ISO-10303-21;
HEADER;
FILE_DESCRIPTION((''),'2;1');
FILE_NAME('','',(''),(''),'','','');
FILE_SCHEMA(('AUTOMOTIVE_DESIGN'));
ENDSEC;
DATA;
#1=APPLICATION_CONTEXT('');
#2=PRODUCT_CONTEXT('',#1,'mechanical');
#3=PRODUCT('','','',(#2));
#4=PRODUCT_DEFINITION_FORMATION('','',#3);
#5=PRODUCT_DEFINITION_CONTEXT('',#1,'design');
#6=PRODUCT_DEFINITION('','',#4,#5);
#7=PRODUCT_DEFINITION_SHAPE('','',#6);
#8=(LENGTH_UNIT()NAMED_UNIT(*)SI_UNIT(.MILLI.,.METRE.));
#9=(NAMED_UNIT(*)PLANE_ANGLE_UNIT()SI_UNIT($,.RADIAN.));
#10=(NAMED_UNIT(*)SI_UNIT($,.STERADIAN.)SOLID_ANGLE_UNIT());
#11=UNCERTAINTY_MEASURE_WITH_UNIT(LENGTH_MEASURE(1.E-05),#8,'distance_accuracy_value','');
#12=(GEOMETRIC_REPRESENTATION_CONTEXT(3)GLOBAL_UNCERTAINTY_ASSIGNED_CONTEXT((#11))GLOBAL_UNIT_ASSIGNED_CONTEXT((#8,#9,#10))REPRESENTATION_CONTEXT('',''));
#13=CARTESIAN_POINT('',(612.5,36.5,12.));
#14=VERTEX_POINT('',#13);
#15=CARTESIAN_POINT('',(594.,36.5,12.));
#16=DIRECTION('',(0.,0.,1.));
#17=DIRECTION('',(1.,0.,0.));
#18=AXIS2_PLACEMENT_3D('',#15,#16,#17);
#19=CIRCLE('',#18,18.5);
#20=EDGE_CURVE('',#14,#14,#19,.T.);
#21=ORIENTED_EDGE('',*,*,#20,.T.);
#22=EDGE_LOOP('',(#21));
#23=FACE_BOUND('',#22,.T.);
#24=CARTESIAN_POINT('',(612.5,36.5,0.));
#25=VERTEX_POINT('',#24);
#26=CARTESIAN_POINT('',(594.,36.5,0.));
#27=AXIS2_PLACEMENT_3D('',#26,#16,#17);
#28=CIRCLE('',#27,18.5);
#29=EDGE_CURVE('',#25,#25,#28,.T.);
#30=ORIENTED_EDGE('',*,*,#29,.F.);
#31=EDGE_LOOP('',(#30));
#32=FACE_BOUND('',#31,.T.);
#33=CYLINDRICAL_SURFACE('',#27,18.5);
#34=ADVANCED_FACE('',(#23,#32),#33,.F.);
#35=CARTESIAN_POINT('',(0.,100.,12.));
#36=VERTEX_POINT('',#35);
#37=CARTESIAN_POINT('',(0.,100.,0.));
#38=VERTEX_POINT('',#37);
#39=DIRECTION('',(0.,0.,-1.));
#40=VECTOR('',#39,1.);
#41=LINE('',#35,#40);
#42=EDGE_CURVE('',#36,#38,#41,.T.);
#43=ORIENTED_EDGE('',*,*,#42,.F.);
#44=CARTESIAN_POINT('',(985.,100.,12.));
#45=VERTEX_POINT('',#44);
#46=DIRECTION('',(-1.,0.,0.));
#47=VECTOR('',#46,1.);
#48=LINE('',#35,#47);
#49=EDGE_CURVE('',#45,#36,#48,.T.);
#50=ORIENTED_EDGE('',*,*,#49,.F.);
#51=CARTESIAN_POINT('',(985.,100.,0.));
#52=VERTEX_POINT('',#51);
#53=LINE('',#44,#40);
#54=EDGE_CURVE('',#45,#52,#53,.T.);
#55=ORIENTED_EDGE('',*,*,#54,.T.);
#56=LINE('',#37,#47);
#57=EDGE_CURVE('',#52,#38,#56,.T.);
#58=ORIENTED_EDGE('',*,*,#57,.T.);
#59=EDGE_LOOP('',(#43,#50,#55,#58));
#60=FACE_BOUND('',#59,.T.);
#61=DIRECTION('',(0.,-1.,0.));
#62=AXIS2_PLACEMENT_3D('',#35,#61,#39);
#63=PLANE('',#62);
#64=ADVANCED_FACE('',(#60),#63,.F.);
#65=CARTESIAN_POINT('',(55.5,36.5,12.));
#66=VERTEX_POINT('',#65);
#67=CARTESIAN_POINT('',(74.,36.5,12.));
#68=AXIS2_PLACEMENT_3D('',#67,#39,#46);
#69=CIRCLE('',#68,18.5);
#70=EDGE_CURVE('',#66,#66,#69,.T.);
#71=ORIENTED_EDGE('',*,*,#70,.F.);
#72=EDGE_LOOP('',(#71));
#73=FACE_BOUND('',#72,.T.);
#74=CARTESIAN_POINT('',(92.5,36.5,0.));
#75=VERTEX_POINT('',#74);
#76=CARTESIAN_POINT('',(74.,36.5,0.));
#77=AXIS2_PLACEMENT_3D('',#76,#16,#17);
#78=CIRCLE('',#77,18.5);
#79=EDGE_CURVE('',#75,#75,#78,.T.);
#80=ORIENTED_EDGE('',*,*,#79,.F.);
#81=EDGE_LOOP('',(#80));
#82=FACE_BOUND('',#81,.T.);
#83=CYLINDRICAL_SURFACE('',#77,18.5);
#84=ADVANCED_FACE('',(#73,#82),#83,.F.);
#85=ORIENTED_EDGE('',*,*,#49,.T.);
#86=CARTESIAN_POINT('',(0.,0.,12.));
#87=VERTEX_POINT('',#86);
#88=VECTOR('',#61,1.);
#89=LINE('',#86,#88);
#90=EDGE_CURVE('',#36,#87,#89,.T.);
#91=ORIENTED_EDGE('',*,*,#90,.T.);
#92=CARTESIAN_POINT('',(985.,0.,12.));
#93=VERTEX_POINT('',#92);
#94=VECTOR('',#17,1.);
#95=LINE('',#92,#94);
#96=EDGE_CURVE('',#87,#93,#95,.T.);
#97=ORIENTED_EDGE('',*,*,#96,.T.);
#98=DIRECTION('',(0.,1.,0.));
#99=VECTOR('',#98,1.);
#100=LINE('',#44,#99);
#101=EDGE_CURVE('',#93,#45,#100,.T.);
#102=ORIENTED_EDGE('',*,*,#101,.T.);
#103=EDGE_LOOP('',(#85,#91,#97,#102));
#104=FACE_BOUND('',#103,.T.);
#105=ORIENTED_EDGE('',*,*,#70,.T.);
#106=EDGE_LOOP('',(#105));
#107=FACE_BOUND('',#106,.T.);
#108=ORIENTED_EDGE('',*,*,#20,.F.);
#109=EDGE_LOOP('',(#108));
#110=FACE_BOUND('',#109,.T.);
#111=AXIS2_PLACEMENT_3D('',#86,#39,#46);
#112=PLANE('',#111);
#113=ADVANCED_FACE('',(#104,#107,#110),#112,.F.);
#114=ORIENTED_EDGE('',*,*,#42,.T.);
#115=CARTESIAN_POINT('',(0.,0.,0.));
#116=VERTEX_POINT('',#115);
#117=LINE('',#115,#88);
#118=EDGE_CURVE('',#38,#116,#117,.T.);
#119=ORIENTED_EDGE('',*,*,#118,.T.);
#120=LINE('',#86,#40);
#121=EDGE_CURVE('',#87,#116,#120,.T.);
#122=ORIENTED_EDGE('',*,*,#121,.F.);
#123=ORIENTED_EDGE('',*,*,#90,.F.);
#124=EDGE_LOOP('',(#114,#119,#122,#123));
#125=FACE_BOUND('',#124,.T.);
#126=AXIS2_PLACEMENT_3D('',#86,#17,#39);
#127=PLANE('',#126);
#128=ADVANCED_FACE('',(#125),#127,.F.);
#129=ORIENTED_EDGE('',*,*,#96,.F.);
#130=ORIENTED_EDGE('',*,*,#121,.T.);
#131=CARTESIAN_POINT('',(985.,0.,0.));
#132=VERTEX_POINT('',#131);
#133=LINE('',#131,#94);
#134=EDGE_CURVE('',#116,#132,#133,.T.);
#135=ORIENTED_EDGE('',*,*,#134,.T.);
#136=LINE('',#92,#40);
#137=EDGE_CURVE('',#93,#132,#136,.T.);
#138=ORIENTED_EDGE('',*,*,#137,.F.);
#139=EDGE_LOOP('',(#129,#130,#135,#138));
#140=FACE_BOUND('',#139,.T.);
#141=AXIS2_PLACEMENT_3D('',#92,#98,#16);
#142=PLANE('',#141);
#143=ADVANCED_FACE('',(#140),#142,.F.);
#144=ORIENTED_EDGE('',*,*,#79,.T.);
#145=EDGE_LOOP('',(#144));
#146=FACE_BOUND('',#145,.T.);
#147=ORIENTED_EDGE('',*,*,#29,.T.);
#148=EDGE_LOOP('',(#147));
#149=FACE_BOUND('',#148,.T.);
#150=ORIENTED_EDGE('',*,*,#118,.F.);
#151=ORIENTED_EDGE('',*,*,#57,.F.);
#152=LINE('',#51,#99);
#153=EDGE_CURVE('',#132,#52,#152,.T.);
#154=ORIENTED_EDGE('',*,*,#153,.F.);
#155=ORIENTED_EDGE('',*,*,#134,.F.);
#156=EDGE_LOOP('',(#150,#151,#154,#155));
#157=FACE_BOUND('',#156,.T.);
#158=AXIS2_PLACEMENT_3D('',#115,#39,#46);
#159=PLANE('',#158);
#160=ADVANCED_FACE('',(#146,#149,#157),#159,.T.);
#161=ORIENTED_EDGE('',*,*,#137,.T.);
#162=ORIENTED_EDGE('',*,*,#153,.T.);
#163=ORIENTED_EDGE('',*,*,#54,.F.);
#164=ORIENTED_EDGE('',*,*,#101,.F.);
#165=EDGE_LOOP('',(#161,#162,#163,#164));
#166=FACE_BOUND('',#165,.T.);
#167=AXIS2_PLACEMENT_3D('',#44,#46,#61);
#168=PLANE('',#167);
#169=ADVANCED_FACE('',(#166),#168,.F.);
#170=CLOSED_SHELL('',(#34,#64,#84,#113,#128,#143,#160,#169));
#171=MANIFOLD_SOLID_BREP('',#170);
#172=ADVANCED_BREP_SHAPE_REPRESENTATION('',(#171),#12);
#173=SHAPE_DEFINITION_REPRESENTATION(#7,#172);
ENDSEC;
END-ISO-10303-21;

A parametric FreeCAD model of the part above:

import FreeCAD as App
import Part
import Sketcher
from FreeCAD import Vector

doc = App.newDocument("Part")
body = doc.addObject("PartDesign::Body", "Body")

# Sketch on XY plane
sketch1 = body.newObject("Sketcher::SketchObject", "Sketch")
sketch1.AttachmentSupport = (doc.getObject("XY_Plane"), [""])
sketch1.MapMode = "FlatFace"
sketch1.addGeometry([
    Part.LineSegment(Vector(0, 100, 0), Vector(0, 0, 0)),
    Part.LineSegment(Vector(0, 0, 0), Vector(985, 0, 0)),
    Part.LineSegment(Vector(985, 0, 0), Vector(985, 100, 0)),
    Part.LineSegment(Vector(985, 100, 0), Vector(0, 100, 0)),
], False)
sketch1.addConstraint([
    Sketcher.Constraint("Coincident", 0, 2, 1, 1),
    Sketcher.Constraint("Coincident", 1, 2, 2, 1),
    Sketcher.Constraint("Coincident", 2, 2, 3, 1),
    Sketcher.Constraint("Coincident", 3, 2, 0, 1),
    Sketcher.Constraint("Vertical", 0),
    Sketcher.Constraint("Horizontal", 1),
    Sketcher.Constraint("Vertical", 2),
    Sketcher.Constraint("Horizontal", 3),
    Sketcher.Constraint("Coincident", 0, 2, -1, 1),
    Sketcher.Constraint("DistanceX", 1, 1, 1, 2, 985.0),
    Sketcher.Constraint("DistanceY", 0, 2, 0, 1, 100.0),
])
pad1 = body.newObject("PartDesign::Pad", "Pad")
pad1.Profile = sketch1
pad1.Length = 12

# Sketch on XY plane
sketch2 = body.newObject("Sketcher::SketchObject", "Sketch001")
sketch2.AttachmentSupport = (doc.getObject("XY_Plane"), [""])
sketch2.MapMode = "FlatFace"
sketch2.AttachmentOffset = App.Placement(Vector(0, 0, 12), App.Rotation())
sketch2.addGeometry(Part.Circle(Vector(74, 36, 0), Vector(0, 0, 1), 18), False)
sketch2.addConstraint([
    Sketcher.Constraint("Diameter", 0, 37.0),
    Sketcher.Constraint("DistanceX", -1, 1, 0, 3, 74.0),
    Sketcher.Constraint("DistanceY", -1, 1, 0, 3, 36.5),
])
pocket1 = body.newObject("PartDesign::Pocket", "Pocket")
pocket1.Profile = sketch2
pocket1.Type = "ThroughAll"
pocket1.Midplane = True

# Sketch on XY plane
sketch3 = body.newObject("Sketcher::SketchObject", "Sketch002")
sketch3.AttachmentSupport = (doc.getObject("XY_Plane"), [""])
sketch3.MapMode = "FlatFace"
sketch3.AttachmentOffset = App.Placement(Vector(0, 0, 12), App.Rotation())
sketch3.addGeometry(Part.Circle(Vector(594, 36, 0), Vector(0, 0, 1), 18), False)
sketch3.addConstraint([
    Sketcher.Constraint("Diameter", 0, 37.0),
    Sketcher.Constraint("DistanceX", -1, 1, 0, 3, 594.0),
    Sketcher.Constraint("DistanceY", -1, 1, 0, 3, 36.5),
])
pocket2 = body.newObject("PartDesign::Pocket", "Pocket001")
pocket2.Profile = sketch3
pocket2.Type = "ThroughAll"

doc.recompute()
